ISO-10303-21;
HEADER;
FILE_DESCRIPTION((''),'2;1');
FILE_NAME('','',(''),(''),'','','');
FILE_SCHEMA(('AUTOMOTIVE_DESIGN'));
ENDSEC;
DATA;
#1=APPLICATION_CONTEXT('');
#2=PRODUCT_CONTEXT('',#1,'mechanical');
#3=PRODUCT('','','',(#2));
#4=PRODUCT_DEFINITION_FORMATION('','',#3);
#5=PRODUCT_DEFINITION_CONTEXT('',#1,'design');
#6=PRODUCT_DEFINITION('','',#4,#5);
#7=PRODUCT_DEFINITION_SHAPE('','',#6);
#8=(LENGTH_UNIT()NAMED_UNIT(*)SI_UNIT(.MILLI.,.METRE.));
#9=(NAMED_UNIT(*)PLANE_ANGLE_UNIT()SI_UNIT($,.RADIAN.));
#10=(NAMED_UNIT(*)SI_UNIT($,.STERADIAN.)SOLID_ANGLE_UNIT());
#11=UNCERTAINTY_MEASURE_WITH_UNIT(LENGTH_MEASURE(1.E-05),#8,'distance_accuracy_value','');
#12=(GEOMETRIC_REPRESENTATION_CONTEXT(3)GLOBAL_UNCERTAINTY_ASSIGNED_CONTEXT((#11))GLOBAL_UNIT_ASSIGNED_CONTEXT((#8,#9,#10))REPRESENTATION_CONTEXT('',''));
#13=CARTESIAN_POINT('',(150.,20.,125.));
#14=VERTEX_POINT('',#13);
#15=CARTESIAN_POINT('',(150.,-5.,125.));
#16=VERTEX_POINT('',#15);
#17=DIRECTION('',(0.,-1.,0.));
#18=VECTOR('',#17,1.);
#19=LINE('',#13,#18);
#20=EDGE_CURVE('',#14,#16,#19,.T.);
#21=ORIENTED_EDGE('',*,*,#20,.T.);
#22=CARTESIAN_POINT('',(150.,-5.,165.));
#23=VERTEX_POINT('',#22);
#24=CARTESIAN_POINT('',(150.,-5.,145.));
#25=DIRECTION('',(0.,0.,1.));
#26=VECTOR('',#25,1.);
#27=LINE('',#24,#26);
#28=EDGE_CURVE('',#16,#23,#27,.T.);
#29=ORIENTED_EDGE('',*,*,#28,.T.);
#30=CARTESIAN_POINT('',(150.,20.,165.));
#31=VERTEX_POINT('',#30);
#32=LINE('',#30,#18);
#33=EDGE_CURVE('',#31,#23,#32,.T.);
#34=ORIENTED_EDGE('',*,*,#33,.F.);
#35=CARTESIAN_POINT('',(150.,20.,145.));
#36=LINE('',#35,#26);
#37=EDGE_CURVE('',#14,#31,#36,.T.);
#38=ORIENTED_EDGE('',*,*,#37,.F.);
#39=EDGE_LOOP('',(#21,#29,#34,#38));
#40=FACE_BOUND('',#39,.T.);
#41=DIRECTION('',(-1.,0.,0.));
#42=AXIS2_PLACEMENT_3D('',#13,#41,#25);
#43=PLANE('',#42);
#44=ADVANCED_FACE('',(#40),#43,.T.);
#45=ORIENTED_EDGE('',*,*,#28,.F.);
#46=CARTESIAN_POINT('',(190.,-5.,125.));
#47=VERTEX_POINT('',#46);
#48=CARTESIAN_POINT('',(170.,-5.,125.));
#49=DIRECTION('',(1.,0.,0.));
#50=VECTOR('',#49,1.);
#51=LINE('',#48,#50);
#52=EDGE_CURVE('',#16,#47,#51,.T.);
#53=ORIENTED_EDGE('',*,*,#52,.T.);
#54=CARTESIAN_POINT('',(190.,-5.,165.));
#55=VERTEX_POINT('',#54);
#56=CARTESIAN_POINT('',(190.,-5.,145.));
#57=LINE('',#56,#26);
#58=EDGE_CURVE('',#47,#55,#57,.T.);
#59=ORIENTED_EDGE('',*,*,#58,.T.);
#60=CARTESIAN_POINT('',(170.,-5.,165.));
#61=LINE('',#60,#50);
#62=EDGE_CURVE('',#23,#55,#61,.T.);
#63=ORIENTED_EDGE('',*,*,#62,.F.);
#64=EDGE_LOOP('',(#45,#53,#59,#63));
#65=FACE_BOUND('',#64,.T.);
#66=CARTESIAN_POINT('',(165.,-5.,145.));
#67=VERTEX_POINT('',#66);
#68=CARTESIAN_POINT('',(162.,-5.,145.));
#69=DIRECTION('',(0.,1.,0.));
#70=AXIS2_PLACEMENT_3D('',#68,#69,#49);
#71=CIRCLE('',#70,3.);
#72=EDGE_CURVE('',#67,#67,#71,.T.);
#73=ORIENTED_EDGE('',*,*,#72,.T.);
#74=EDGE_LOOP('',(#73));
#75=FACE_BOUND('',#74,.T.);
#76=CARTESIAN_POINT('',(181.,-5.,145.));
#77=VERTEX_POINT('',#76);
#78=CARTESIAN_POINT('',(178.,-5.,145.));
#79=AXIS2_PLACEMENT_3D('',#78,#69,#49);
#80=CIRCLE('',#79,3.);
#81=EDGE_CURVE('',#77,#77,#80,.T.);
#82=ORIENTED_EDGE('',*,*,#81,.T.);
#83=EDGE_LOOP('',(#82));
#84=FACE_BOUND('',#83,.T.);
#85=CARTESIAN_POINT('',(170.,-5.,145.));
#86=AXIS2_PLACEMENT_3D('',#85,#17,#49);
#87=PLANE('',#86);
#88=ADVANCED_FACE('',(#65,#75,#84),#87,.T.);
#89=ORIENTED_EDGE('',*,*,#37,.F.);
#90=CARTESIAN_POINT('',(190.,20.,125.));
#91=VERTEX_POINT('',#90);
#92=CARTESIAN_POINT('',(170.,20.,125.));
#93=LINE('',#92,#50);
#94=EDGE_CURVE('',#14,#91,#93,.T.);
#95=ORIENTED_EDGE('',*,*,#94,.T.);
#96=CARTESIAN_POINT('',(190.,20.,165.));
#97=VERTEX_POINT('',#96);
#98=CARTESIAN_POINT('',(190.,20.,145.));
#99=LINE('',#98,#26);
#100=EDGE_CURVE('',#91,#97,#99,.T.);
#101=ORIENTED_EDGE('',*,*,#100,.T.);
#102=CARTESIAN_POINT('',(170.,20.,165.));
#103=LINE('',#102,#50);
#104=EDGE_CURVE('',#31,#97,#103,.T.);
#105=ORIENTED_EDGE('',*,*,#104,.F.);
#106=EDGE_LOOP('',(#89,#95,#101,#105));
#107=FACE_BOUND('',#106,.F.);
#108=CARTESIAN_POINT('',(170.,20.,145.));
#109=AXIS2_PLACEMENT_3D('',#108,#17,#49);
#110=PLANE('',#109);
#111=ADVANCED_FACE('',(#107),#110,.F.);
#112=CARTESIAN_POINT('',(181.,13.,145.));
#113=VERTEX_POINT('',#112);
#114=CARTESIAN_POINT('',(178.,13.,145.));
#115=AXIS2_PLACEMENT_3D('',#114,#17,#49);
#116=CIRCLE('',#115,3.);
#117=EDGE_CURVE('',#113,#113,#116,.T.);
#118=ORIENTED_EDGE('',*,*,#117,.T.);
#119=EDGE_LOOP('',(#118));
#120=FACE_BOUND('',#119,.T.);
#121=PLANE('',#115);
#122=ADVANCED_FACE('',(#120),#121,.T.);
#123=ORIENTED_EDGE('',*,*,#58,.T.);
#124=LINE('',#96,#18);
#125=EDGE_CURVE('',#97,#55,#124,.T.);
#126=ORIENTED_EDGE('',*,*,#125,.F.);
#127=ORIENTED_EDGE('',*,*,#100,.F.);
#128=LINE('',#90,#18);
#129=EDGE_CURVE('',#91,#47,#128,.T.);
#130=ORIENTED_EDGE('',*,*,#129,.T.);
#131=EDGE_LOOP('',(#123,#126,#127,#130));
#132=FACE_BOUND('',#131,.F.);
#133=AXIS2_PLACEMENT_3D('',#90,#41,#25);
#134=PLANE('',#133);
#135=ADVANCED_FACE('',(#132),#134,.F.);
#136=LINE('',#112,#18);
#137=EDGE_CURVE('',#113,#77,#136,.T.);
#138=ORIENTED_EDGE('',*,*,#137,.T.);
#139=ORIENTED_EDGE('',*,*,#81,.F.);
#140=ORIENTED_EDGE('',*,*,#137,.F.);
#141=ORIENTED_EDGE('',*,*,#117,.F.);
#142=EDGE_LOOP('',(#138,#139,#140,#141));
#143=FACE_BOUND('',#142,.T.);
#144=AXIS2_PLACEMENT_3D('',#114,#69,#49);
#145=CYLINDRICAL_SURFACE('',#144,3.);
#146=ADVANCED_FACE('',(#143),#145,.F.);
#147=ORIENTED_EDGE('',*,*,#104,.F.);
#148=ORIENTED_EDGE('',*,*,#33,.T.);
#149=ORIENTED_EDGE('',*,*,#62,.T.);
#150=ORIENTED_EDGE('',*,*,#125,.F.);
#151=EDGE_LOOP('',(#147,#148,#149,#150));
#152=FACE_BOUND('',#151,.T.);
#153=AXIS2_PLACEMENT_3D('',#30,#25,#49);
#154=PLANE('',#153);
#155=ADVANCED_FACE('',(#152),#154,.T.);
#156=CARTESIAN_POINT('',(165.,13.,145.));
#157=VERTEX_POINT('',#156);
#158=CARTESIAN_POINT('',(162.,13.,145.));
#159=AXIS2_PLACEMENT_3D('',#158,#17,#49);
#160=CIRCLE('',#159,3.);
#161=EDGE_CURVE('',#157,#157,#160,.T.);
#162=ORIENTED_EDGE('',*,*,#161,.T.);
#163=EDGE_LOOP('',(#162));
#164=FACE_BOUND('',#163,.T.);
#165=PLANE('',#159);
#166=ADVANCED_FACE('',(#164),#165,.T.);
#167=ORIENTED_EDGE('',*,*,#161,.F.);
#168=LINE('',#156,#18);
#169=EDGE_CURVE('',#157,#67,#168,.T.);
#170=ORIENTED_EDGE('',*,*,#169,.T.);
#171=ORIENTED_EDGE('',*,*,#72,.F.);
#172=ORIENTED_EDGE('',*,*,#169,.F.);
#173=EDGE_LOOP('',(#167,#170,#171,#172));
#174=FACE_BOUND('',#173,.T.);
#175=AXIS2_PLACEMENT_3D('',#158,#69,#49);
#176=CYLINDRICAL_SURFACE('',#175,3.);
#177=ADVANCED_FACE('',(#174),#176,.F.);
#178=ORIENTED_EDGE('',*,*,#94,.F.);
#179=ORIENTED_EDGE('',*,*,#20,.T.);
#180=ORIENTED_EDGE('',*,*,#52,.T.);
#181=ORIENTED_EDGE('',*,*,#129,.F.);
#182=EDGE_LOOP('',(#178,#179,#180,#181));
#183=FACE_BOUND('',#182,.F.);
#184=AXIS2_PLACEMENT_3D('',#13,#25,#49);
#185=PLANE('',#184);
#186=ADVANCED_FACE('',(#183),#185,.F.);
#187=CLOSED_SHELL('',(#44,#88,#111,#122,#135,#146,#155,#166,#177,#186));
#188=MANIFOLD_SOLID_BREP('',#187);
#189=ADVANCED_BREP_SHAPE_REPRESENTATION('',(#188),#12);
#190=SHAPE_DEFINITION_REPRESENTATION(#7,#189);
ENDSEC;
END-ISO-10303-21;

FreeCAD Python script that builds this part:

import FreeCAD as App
import Part
import Sketcher
from FreeCAD import Vector


def add_polygon(sketch, points):
    """Adds a closed chain of lines whose ends are joined by coincident constraints."""
    first, n = sketch.GeometryCount, len(points)
    for a, b in zip(points, points[1:] + points[:1]):
        sketch.addGeometry(Part.LineSegment(App.Vector(*a, 0), App.Vector(*b, 0)), False)
    for i in range(n):
        sketch.addConstraint(Sketcher.Constraint("Coincident", first + i, 2, first + (i + 1) % n, 1))

doc = App.newDocument("Part")
body = doc.addObject("PartDesign::Body", "Body")

sketch1 = doc.addObject("Sketcher::SketchObject", "Sketch")
body.addObject(sketch1)
sketch1.AttachmentSupport = (doc.XY_Plane, [""])
sketch1.MapMode = "FlatFace"
sketch1.addGeometry(Part.Circle(Vector(0, 0, 0), Vector(0, 0, 1), 3), False)
sketch1.addConstraint([
    Sketcher.Constraint("Coincident", 0, 3, -1, 1),
    Sketcher.Constraint("Diameter", 0, 6.0),
])
pad1 = doc.addObject("PartDesign::Pad", "Pad")
body.addObject(pad1)
pad1.Profile = sketch1
pad1.Length = 20
body2 = doc.addObject("PartDesign::Body", "Body001")
doc.recompute()

body.Placement = App.Placement(Vector(0, 0, 0), App.Rotation(Vector(1, 0, 0), 90))
boolean = doc.addObject("PartDesign::Boolean", "Boolean")
body2.addObject(boolean)
boolean.Type = "Fuse"
boolean.addObjects([body])
body3 = doc.addObject("PartDesign::Body", "Body002")
doc.recompute()

body2.Placement = App.Placement(Vector(162, -7, 145), App.Rotation(Vector(0, 0, 1), 0))
boolean2 = doc.addObject("PartDesign::Boolean", "Boolean001")
body3.addObject(boolean2)
boolean2.Type = "Fuse"
boolean2.addObjects([body2])
body4 = doc.addObject("PartDesign::Body", "Body003")

sketch2 = doc.addObject("Sketcher::SketchObject", "Sketch001")
body4.addObject(sketch2)
sketch2.AttachmentSupport = (doc.getObject("XY_Plane003"), [""])
sketch2.MapMode = "FlatFace"
sketch2.addGeometry(Part.Circle(Vector(0, 0, 0), Vector(0, 0, 1), 3), False)
sketch2.addConstraint([
    Sketcher.Constraint("Coincident", 0, 3, -1, 1),
    Sketcher.Constraint("Diameter", 0, 6.0),
])
pad2 = doc.addObject("PartDesign::Pad", "Pad001")
body4.addObject(pad2)
pad2.Profile = sketch2
pad2.Length = 20
body5 = doc.addObject("PartDesign::Body", "Body004")
doc.recompute()

body4.Placement = App.Placement(Vector(0, 0, 0), App.Rotation(Vector(1, 0, 0), 90))
boolean3 = doc.addObject("PartDesign::Boolean", "Boolean002")
body5.addObject(boolean3)
boolean3.Type = "Fuse"
boolean3.addObjects([body4])
body6 = doc.addObject("PartDesign::Body", "Body005")
doc.recompute()

body5.Placement = App.Placement(Vector(178, -7, 145), App.Rotation(Vector(0, 0, 1), 0))
boolean4 = doc.addObject("PartDesign::Boolean", "Boolean003")
body6.addObject(boolean4)
boolean4.Type = "Fuse"
boolean4.addObjects([body5])
body7 = doc.addObject("PartDesign::Body", "Body006")

sketch3 = doc.addObject("Sketcher::SketchObject", "Sketch002")
body7.addObject(sketch3)
sketch3.AttachmentSupport = (doc.getObject("XY_Plane006"), [""])
sketch3.MapMode = "FlatFace"
add_polygon(sketch3, [(0, 40), (0, 0), (40, 0), (40, 40)])
sketch3.addConstraint([
    Sketcher.Constraint("Vertical", 0),
    Sketcher.Constraint("Horizontal", 1),
    Sketcher.Constraint("Vertical", 2),
    Sketcher.Constraint("Horizontal", 3),
    Sketcher.Constraint("Coincident", 0, 2, -1, 1),
    Sketcher.Constraint("Equal", 3, 0),
    Sketcher.Constraint("DistanceX", 1, 1, 1, 2, 40.0),
])
pad3 = doc.addObject("PartDesign::Pad", "Pad002")
body7.addObject(pad3)
pad3.Profile = sketch3
pad3.Length = 25
body8 = doc.addObject("PartDesign::Body", "Body007")
doc.recompute()

body7.Placement = App.Placement(Vector(0, 0, 0), App.Rotation(Vector(1, 0, 0), 90))
boolean5 = doc.addObject("PartDesign::Boolean", "Boolean004")
body8.addObject(boolean5)
boolean5.Type = "Fuse"
boolean5.addObjects([body7])
body9 = doc.addObject("PartDesign::Body", "Body008")
doc.recompute()

body8.Placement = App.Placement(Vector(150, 0, 125), App.Rotation(Vector(0, 0, 1), 0))
boolean6 = doc.addObject("PartDesign::Boolean", "Boolean005")
body9.addObject(boolean6)
boolean6.Type = "Fuse"
boolean6.addObjects([body8])
doc.recompute()

boolean7 = doc.addObject("PartDesign::Boolean", "Boolean006")
body9.addObject(boolean7)
boolean7.Type = "Cut"
boolean7.addObjects([body6])
doc.recompute()

boolean8 = doc.addObject("PartDesign::Boolean", "Boolean007")
body9.addObject(boolean8)
boolean8.Type = "Cut"
boolean8.addObjects([body3])
body10 = doc.addObject("PartDesign::Body", "Body009")
doc.recompute()

body9.Placement = App.Placement(Vector(0, 20, 0), App.Rotation(Vector(0, 0, 1), 0))
boolean9 = doc.addObject("PartDesign::Boolean", "Boolean008")
body10.addObject(boolean9)
boolean9.Type = "Fuse"
boolean9.addObjects([body9])

doc.recompute()
